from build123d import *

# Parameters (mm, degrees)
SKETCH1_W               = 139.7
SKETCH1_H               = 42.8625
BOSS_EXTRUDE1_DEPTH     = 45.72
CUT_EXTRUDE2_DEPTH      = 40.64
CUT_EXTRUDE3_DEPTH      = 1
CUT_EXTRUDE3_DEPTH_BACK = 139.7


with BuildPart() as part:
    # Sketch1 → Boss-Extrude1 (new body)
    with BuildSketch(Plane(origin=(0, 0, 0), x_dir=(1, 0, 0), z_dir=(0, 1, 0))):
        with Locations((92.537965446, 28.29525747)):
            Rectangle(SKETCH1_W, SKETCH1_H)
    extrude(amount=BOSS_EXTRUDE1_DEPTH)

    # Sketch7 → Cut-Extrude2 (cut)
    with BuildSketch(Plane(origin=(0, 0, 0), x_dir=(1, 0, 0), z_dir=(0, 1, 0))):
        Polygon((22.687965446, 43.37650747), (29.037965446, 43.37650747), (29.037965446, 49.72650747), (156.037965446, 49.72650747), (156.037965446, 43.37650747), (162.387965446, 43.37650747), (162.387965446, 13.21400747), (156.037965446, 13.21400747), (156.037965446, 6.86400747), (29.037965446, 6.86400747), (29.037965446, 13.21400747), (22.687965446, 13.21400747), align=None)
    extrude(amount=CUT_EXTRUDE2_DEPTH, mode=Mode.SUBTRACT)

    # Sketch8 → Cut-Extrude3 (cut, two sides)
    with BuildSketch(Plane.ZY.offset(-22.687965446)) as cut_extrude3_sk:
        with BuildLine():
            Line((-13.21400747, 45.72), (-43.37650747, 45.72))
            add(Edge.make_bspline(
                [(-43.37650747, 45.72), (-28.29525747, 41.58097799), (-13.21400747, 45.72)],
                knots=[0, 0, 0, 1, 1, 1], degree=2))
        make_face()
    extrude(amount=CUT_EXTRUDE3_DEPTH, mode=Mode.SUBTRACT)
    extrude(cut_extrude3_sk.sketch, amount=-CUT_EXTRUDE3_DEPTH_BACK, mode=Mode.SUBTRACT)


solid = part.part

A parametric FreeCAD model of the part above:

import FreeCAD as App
import Part
import Sketcher
from FreeCAD import Vector
Q = App.Units.Quantity

doc = App.newDocument("Part")
params = doc.addObject("Spreadsheet::Sheet", "Params")
for row, (alias, value) in enumerate([
    ("sketch1_width", "5.5 in"),
    ("sketch1_height", "1.6875 in"),
    ("pad1_length", "1.8 in"),
    ("sketch2_width", "5 in"),
    ("sketch2_width2", "0.25 in"),
    ("sketch2_height", "1.1875 in"),
    ("pocket1_length", "1.6 in"),
], start=1):
    params.set(f"A{row}", alias)
    params.set(f"B{row}", "=" + value)
    params.setAlias(f"B{row}", alias)

body = doc.addObject("PartDesign::Body", "Body")

# Sketch on XZ plane
sketch1 = body.newObject("Sketcher::SketchObject", "Sketch")
sketch1.AttachmentSupport = (doc.getObject("XZ_Plane"), [""])
sketch1.MapMode = "FlatFace"
sketch1.addGeometry([
    Part.LineSegment(Vector(22.687965, -49.726507, 0), Vector(22.687965, -6.864007, 0)),
    Part.LineSegment(Vector(22.687965, -6.864007, 0), Vector(162.387965, -6.864007, 0)),
    Part.LineSegment(Vector(162.387965, -6.864007, 0), Vector(162.387965, -49.726507, 0)),
    Part.LineSegment(Vector(162.387965, -49.726507, 0), Vector(22.687965, -49.726507, 0)),
], False)
sketch1.addConstraint([
    Sketcher.Constraint("Coincident", 0, 2, 1, 1),
    Sketcher.Constraint("Coincident", 1, 2, 2, 1),
    Sketcher.Constraint("Coincident", 2, 2, 3, 1),
    Sketcher.Constraint("Coincident", 3, 2, 0, 1),
    Sketcher.Constraint("Vertical", 0),
    Sketcher.Constraint("Horizontal", 1),
    Sketcher.Constraint("Vertical", 2),
    Sketcher.Constraint("Horizontal", 3),
    Sketcher.Constraint("DistanceX", 1, 1, 1, 2, Q("5.5 in")),
    Sketcher.Constraint("DistanceY", 0, 1, 0, 2, Q("1.6875 in")),
    Sketcher.Constraint("DistanceX", -1, 1, 0, 2, Q("22.687965 mm")),
    Sketcher.Constraint("DistanceY", 0, 2, -1, 1, Q("6.864007 mm")),
])
sketch1.setExpression("Constraints[8]", "Params.sketch1_width")
sketch1.setExpression("Constraints[9]", "Params.sketch1_height")
pad1 = body.newObject("PartDesign::Pad", "Pad")
pad1.Profile = sketch1
pad1.setExpression("Length", "Params.pad1_length")
pad1.Reversed = True

# Sketch on XZ plane
sketch2 = body.newObject("Sketcher::SketchObject", "Sketch001")
sketch2.AttachmentSupport = (doc.getObject("XZ_Plane"), [""])
sketch2.MapMode = "FlatFace"
sketch2.addGeometry([
    Part.LineSegment(Vector(29.037965, -43.376507, 0), Vector(22.687965, -43.376507, 0)),  # 0
    Part.LineSegment(Vector(22.687965, -43.376507, 0), Vector(22.687965, -13.214007, 0)),  # 1
    Part.LineSegment(Vector(22.687965, -13.214007, 0), Vector(29.037965, -13.214007, 0)),  # 2
    Part.LineSegment(Vector(29.037965, -13.214007, 0), Vector(29.037965, -6.864007, 0)),  # 3
    Part.LineSegment(Vector(29.037965, -6.864007, 0), Vector(156.037965, -6.864007, 0)),  # 4
    Part.LineSegment(Vector(156.037965, -6.864007, 0), Vector(156.037965, -13.214007, 0)),  # 5
    Part.LineSegment(Vector(156.037965, -13.214007, 0), Vector(162.387965, -13.214007, 0)),  # 6
    Part.LineSegment(Vector(162.387965, -13.214007, 0), Vector(162.387965, -43.376507, 0)),  # 7
    Part.LineSegment(Vector(162.387965, -43.376507, 0), Vector(156.037965, -43.376507, 0)),  # 8
    Part.LineSegment(Vector(156.037965, -43.376507, 0), Vector(156.037965, -49.726507, 0)),  # 9
    Part.LineSegment(Vector(156.037965, -49.726507, 0), Vector(29.037965, -49.726507, 0)),  # 10
    Part.LineSegment(Vector(29.037965, -49.726507, 0), Vector(29.037965, -43.376507, 0)),  # 11
], False)
sketch2.addConstraint([
    Sketcher.Constraint("Coincident", 0, 2, 1, 1),
    Sketcher.Constraint("Coincident", 1, 2, 2, 1),
    Sketcher.Constraint("Coincident", 2, 2, 3, 1),
    Sketcher.Constraint("Coincident", 3, 2, 4, 1),
    Sketcher.Constraint("Coincident", 4, 2, 5, 1),
    Sketcher.Constraint("Coincident", 5, 2, 6, 1),
    Sketcher.Constraint("Coincident", 6, 2, 7, 1),
    Sketcher.Constraint("Coincident", 7, 2, 8, 1),
    Sketcher.Constraint("Coincident", 8, 2, 9, 1),
    Sketcher.Constraint("Coincident", 9, 2, 10, 1),
    Sketcher.Constraint("Coincident", 10, 2, 11, 1),
    Sketcher.Constraint("Coincident", 11, 2, 0, 1),
    Sketcher.Constraint("Horizontal", 0),
    Sketcher.Constraint("Vertical", 1),
    Sketcher.Constraint("Horizontal", 2),
    Sketcher.Constraint("Vertical", 3),
    Sketcher.Constraint("Horizontal", 4),
    Sketcher.Constraint("Vertical", 5),
    Sketcher.Constraint("Horizontal", 6),
    Sketcher.Constraint("Vertical", 7),
    Sketcher.Constraint("Horizontal", 8),
    Sketcher.Constraint("Vertical", 9),
    Sketcher.Constraint("Horizontal", 10),
    Sketcher.Constraint("Vertical", 11),
    Sketcher.Constraint("Horizontal", 2, 2, 5, 2),
    Sketcher.Constraint("Horizontal", 0, 2, 7, 2),
    Sketcher.Constraint("Vertical", 5, 2, 8, 2),
    Sketcher.Constraint("Vertical", 3, 2, 10, 2),
    Sketcher.Constraint("Equal", 2, 6),
    Sketcher.Constraint("Equal", 8, 3),
    Sketcher.Constraint("Equal", 5, 9),
    Sketcher.Constraint("DistanceX", 4, 1, 4, 2, Q("5 in")),
    Sketcher.Constraint("DistanceX", 0, 2, 0, 1, Q("0.25 in")),
    Sketcher.Constraint("DistanceY", 1, 1, 1, 2, Q("1.1875 in")),
    Sketcher.Constraint("DistanceX", -1, 1, 0, 2, Q("22.687965 mm")),
    Sketcher.Constraint("DistanceY", 0, 2, -1, 1, Q("43.376507 mm")),
])
sketch2.setExpression("Constraints[31]", "Params.sketch2_width")
sketch2.setExpression("Constraints[32]", "Params.sketch2_width2")
sketch2.setExpression("Constraints[33]", "Params.sketch2_height")
pocket1 = body.newObject("PartDesign::Pocket", "Pocket")
pocket1.Profile = sketch2
pocket1.setExpression("Length", "Params.pocket1_length")

# Sketch on YZ plane
sketch3 = body.newObject("Sketcher::SketchObject", "Sketch002")
sketch3.AttachmentSupport = (doc.getObject("YZ_Plane"), [""])
sketch3.MapMode = "FlatFace"
sketch3.AttachmentOffset = App.Placement(Vector(0, 0, 22.687965), App.Rotation())
sketch3.addGeometry([
    Part.LineSegment(Vector(45.72, -13.214007, 0), Vector(45.72, -43.376507, 0)),
    Part.BSplineCurve([Vector(45.72, -43.376507, 0), Vector(41.580978, -28.295257, 0), Vector(45.72, -13.214007, 0)], [3, 3], [0, 1], False, 2, [1, 1, 1], False),
], False)
sketch3.addConstraint([
    Sketcher.Constraint("Block", 1),
    Sketcher.Constraint("Coincident", 0, 1, 1, 2),
    Sketcher.Constraint("Coincident", 1, 1, 0, 2),
])
pocket2 = body.newObject("PartDesign::Pocket", "Pocket001")
pocket2.Profile = sketch3
pocket2.Type = "ThroughAll"
pocket2.Midplane = True

doc.recompute()
